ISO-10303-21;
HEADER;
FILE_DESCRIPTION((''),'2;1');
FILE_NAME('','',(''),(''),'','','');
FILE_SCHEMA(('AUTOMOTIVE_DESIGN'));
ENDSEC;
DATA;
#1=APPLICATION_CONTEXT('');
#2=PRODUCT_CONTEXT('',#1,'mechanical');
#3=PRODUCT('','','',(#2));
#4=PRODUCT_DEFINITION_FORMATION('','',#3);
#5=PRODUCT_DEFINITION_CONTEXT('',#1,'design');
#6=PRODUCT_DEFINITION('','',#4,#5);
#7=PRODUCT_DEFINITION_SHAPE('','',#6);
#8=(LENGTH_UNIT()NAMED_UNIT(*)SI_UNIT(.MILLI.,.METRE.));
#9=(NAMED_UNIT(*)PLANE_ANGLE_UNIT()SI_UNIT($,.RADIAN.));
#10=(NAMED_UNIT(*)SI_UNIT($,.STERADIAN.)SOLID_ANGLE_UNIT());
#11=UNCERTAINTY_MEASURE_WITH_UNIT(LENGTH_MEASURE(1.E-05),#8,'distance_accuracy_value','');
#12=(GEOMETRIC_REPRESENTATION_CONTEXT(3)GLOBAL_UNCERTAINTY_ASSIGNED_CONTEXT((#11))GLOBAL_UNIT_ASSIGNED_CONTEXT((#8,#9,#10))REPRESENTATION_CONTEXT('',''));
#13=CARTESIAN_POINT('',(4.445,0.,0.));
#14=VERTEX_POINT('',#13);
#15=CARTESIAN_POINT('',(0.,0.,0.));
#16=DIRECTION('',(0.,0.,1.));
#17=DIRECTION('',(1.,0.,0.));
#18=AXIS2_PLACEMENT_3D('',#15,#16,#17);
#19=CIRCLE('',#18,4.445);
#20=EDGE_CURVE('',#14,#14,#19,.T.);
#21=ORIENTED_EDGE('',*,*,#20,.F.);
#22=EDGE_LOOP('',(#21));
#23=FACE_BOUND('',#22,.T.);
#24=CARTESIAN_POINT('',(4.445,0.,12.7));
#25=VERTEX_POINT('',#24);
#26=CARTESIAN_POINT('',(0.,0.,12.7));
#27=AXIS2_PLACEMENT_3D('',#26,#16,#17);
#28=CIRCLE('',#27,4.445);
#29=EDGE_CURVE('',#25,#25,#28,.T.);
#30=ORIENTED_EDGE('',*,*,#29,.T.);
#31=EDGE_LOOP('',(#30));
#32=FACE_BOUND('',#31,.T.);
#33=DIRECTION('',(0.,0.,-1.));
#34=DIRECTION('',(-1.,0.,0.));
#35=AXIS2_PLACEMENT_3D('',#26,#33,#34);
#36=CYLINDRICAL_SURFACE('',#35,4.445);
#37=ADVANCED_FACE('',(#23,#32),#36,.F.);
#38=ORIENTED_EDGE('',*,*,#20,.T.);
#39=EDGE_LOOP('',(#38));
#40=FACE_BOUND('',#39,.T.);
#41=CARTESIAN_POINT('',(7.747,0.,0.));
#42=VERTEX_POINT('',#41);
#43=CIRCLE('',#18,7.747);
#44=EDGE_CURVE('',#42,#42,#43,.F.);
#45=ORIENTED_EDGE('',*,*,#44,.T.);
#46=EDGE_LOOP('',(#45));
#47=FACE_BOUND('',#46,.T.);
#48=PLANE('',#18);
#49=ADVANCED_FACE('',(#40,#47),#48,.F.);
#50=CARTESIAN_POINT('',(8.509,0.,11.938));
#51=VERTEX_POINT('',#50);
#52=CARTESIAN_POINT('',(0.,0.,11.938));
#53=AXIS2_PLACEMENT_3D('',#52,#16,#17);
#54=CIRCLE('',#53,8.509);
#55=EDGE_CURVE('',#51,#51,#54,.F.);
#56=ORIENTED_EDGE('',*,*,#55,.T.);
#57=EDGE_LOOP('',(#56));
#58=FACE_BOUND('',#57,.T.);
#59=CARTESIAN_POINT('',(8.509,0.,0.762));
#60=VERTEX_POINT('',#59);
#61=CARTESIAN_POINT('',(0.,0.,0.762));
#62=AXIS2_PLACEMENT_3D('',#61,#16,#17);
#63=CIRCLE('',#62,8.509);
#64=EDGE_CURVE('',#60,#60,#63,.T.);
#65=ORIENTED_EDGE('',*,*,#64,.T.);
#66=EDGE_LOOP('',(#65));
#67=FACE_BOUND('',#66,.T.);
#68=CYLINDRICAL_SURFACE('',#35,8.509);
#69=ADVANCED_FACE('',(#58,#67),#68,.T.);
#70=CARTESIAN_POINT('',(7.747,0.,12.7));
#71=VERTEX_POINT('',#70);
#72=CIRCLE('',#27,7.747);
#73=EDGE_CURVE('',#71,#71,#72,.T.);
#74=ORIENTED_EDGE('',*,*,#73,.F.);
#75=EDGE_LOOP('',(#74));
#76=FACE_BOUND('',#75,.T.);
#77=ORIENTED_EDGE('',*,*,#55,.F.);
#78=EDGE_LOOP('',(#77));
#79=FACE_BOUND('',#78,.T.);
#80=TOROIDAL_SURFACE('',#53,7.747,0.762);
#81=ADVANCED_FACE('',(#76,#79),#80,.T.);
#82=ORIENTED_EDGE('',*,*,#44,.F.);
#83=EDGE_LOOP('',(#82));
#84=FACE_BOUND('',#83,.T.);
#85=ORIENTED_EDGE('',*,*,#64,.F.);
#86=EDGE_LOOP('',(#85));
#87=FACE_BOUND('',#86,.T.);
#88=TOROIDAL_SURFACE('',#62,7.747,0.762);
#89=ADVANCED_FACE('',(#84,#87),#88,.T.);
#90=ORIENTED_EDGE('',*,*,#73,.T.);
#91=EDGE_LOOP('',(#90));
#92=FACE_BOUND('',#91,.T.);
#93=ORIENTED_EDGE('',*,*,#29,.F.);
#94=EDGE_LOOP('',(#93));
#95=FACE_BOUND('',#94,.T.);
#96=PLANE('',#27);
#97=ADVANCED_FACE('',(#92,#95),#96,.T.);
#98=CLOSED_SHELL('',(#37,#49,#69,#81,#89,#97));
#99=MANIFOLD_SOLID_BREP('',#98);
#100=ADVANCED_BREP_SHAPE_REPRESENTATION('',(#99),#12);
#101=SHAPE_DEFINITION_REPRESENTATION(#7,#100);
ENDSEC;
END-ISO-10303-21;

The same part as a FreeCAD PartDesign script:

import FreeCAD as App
import Part
import Sketcher
Q = App.Units.Quantity


def edges_at(feature, points):
    """Names of the edges that pass closest to the given points."""
    edges = feature.Shape.Edges
    near = lambda p: min(range(len(edges)), key=lambda i: edges[i].distToShape(Part.Vertex(*p))[0])
    return sorted({f"Edge{near(p) + 1}" for p in points})

doc = App.newDocument("Part")
body = doc.addObject("PartDesign::Body", "Body")

# Sketch on XY plane
sketch1 = body.newObject("Sketcher::SketchObject", "Sketch")
sketch1.AttachmentSupport = (doc.getObject("XY_Plane"), [""])
sketch1.MapMode = "FlatFace"
sketch1.addGeometry([
    Part.Circle(App.Vector(0, 0, 0), App.Vector(0, 0, 1), 8.509),
    Part.Circle(App.Vector(0, 0, 0), App.Vector(0, 0, 1), 4.445),
], False)
sketch1.addConstraint([
    Sketcher.Constraint("Coincident", 0, 3, -1, 1),
    Sketcher.Constraint("Coincident", 1, 3, -1, 1),
    Sketcher.Constraint("Diameter", 0, Q("0.67 in")),
    Sketcher.Constraint("Diameter", 1, Q("0.35 in")),
])
pad1 = body.newObject("PartDesign::Pad", "Pad")
pad1.Profile = sketch1
pad1.Length = Q("0.5 in")
doc.recompute()

fillet = body.newObject("PartDesign::Fillet", "Fillet")
fillet.Base = (pad1, edges_at(pad1, [(-8.509, 0, 0), (-8.509, 0, 12.7)]))
fillet.Radius = Q("0.03 in")

doc.recompute()
